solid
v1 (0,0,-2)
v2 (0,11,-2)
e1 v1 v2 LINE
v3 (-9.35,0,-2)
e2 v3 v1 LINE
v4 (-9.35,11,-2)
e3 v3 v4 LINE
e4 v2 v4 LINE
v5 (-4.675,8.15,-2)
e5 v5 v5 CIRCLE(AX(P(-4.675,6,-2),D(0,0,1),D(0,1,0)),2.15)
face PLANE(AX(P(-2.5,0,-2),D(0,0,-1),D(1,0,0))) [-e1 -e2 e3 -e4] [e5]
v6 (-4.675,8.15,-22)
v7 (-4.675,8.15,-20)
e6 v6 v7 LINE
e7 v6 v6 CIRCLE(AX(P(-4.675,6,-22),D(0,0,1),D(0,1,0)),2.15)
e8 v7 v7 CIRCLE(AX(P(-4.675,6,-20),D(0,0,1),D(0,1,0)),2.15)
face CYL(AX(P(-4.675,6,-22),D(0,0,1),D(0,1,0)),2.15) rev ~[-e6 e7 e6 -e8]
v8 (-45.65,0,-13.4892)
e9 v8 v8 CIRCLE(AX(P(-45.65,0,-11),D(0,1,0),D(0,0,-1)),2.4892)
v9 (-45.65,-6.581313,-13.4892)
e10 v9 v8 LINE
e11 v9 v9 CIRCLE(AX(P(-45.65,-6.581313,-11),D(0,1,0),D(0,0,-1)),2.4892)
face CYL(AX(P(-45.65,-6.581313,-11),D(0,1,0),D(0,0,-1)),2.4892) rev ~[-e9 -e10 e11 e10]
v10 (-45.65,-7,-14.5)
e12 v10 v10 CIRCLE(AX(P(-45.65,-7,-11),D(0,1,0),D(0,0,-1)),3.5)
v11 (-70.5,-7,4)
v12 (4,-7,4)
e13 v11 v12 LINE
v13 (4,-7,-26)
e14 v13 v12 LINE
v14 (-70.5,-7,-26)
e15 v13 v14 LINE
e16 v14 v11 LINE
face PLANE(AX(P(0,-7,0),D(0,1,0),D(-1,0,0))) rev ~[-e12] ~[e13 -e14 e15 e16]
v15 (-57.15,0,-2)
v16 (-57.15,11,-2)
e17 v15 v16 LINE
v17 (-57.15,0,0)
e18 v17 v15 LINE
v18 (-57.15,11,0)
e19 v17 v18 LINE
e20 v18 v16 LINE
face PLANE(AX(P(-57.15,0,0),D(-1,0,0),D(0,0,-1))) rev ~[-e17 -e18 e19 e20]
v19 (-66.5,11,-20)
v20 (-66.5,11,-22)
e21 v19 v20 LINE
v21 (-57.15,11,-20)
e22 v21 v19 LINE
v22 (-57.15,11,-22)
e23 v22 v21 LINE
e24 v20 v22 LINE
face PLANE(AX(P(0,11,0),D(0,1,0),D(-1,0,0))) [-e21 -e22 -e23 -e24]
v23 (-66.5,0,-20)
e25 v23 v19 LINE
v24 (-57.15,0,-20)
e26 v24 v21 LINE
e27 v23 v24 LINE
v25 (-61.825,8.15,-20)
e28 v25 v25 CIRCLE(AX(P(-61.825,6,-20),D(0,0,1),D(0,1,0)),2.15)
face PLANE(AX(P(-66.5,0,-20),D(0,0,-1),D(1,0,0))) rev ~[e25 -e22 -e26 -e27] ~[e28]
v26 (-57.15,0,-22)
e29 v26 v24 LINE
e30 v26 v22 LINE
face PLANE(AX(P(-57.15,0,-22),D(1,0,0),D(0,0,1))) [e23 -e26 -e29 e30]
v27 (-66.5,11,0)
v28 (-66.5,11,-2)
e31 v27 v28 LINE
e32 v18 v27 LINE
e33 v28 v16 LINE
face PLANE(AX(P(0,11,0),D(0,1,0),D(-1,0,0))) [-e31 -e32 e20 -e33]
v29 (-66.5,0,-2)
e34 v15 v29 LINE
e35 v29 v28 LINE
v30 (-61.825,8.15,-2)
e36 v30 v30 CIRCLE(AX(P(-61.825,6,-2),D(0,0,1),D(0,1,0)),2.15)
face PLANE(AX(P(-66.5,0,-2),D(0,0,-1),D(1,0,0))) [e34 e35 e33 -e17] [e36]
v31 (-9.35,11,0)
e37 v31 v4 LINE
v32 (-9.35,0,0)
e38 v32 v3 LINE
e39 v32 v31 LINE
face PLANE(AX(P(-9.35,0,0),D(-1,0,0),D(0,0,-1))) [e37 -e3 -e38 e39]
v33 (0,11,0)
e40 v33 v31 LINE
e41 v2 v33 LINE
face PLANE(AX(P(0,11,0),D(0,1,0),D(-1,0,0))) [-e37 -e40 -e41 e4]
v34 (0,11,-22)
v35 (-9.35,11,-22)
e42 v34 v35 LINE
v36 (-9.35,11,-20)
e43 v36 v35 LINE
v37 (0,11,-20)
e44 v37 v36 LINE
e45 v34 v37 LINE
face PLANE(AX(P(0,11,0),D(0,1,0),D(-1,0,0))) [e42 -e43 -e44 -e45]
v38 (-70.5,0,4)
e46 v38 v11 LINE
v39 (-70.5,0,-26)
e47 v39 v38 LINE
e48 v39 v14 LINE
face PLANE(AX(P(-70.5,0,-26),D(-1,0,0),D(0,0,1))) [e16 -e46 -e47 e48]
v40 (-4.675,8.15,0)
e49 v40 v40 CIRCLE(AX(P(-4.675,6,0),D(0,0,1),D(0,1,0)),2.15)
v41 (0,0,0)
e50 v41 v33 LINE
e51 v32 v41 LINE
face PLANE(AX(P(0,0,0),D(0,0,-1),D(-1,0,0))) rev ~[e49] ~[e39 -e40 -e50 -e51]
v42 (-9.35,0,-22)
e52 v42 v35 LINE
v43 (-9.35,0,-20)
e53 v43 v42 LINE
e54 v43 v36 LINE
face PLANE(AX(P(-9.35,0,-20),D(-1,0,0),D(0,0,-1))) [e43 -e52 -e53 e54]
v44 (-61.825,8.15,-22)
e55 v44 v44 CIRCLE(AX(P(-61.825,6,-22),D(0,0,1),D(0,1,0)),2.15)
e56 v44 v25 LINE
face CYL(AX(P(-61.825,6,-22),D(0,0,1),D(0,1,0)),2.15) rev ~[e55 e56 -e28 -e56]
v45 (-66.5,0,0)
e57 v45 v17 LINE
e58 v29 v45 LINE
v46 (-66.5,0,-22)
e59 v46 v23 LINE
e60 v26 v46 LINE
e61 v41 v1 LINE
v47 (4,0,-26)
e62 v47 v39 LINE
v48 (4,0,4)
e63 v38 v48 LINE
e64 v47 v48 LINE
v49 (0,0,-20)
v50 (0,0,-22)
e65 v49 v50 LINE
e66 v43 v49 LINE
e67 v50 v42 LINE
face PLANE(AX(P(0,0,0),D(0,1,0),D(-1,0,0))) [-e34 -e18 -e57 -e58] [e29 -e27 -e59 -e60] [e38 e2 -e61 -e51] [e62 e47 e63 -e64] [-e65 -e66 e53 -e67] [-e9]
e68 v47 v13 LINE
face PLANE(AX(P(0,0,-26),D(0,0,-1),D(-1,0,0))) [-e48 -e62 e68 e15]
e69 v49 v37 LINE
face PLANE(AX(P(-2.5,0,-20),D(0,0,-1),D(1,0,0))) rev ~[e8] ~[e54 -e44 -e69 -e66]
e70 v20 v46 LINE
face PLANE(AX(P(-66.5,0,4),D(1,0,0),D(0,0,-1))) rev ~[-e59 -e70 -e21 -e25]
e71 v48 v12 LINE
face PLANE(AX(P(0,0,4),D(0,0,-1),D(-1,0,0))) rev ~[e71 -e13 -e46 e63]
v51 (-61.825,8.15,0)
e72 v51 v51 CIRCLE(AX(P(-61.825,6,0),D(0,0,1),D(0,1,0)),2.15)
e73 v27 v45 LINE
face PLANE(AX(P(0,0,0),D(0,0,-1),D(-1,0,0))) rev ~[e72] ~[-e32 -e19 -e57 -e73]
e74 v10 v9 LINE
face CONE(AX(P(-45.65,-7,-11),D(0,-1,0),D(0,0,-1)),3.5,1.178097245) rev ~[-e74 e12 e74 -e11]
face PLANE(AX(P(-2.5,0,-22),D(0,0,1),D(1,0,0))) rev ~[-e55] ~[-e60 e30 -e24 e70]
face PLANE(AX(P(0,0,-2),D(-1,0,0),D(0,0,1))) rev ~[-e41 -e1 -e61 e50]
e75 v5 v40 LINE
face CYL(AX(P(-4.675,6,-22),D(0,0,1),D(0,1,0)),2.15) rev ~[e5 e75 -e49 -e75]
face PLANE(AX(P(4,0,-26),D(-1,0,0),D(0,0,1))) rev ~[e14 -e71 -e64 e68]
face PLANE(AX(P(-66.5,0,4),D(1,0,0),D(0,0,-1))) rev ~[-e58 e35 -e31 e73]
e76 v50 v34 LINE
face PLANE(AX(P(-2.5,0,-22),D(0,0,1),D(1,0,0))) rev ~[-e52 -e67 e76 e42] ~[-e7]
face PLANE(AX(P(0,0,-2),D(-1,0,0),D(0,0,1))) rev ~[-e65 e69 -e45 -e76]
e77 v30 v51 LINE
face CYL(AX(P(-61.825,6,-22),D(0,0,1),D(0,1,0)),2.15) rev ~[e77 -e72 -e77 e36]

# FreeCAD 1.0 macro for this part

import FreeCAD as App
import Part
import Sketcher

V = App.Vector
Q = App.Units.Quantity

doc = App.newDocument("Part")
body = doc.addObject("PartDesign::Body", "Body")

# Sketch on XZ plane
sketch1 = doc.addObject("Sketcher::SketchObject", "Sketch")
body.addObject(sketch1)
sketch1.AttachmentSupport = (doc.XZ_Plane, [""])
sketch1.MapMode = "FlatFace"
sketch1.addGeometry([
    Part.LineSegment(V(0, 0, 0), V(0, -22, 0)),
    Part.LineSegment(V(0, -22, 0), V(-66.5, -22, 0)),
    Part.LineSegment(V(-66.5, -22, 0), V(-66.5, 0, 0)),
    Part.LineSegment(V(-66.5, 0, 0), V(0, 0, 0)),
], False)
sketch1.addConstraint([
    Sketcher.Constraint("Coincident", 0, 2, 1, 1),
    Sketcher.Constraint("Coincident", 1, 2, 2, 1),
    Sketcher.Constraint("Coincident", 2, 2, 3, 1),
    Sketcher.Constraint("Coincident", 3, 2, 0, 1),
    Sketcher.Constraint("Vertical", 0),
    Sketcher.Constraint("Horizontal", 1),
    Sketcher.Constraint("Vertical", 2),
    Sketcher.Constraint("Horizontal", 3),
    Sketcher.Constraint("Coincident", 3, 2, -1, 1),
    Sketcher.Constraint("DistanceY", 0, 2, 0, 1, Q("22 mm")),
    Sketcher.Constraint("DistanceX", 1, 2, 1, 1, Q("66.5 mm")),
])
pad1 = doc.addObject("PartDesign::Pad", "Pad")
body.addObject(pad1)
pad1.Profile = sketch1
pad1.Length = 7

# Sketch on XZ plane
sketch2 = doc.addObject("Sketcher::SketchObject", "Sketch001")
body.addObject(sketch2)
sketch2.AttachmentSupport = (doc.XZ_Plane, [""])
sketch2.MapMode = "FlatFace"
sketch2.addGeometry([
    Part.LineSegment(V(0, 0, 0), V(0, -2, 0)),  # 0
    Part.LineSegment(V(0, -2, 0), V(-9.35, -2, 0)),  # 1
    Part.LineSegment(V(-9.35, -2, 0), V(-9.35, 0, 0)),  # 2
    Part.LineSegment(V(-9.35, 0, 0), V(0, 0, 0)),  # 3
    Part.LineSegment(V(0, -20, 0), V(0, -22, 0)),  # 4
    Part.LineSegment(V(0, -22, 0), V(-9.35, -22, 0)),  # 5
    Part.LineSegment(V(-9.35, -22, 0), V(-9.35, -20, 0)),  # 6
    Part.LineSegment(V(-9.35, -20, 0), V(0, -20, 0)),  # 7
    Part.LineSegment(V(-66.5, -2, 0), V(-66.5, 0, 0)),  # 8
    Part.LineSegment(V(-66.5, 0, 0), V(-57.15, 0, 0)),  # 9
    Part.LineSegment(V(-57.15, 0, 0), V(-57.15, -2, 0)),  # 10
    Part.LineSegment(V(-57.15, -2, 0), V(-66.5, -2, 0)),  # 11
    Part.LineSegment(V(-66.5, -22, 0), V(-66.5, -20, 0)),  # 12
    Part.LineSegment(V(-66.5, -20, 0), V(-57.15, -20, 0)),  # 13
    Part.LineSegment(V(-57.15, -20, 0), V(-57.15, -22, 0)),  # 14
    Part.LineSegment(V(-57.15, -22, 0), V(-66.5, -22, 0)),  # 15
], False)
sketch2.addConstraint([
    Sketcher.Constraint("Coincident", 0, 2, 1, 1),
    Sketcher.Constraint("Coincident", 1, 2, 2, 1),
    Sketcher.Constraint("Coincident", 2, 2, 3, 1),
    Sketcher.Constraint("Coincident", 3, 2, 0, 1),
    Sketcher.Constraint("Coincident", 4, 2, 5, 1),
    Sketcher.Constraint("Coincident", 5, 2, 6, 1),
    Sketcher.Constraint("Coincident", 6, 2, 7, 1),
    Sketcher.Constraint("Coincident", 7, 2, 4, 1),
    Sketcher.Constraint("Coincident", 8, 2, 9, 1),
    Sketcher.Constraint("Coincident", 9, 2, 10, 1),
    Sketcher.Constraint("Coincident", 10, 2, 11, 1),
    Sketcher.Constraint("Coincident", 11, 2, 8, 1),
    Sketcher.Constraint("Coincident", 12, 2, 13, 1),
    Sketcher.Constraint("Coincident", 13, 2, 14, 1),
    Sketcher.Constraint("Coincident", 14, 2, 15, 1),
    Sketcher.Constraint("Coincident", 15, 2, 12, 1),
    Sketcher.Constraint("Vertical", 0),
    Sketcher.Constraint("Horizontal", 1),
    Sketcher.Constraint("Vertical", 2),
    Sketcher.Constraint("Horizontal", 3),
    Sketcher.Constraint("Vertical", 4),
    Sketcher.Constraint("Horizontal", 5),
    Sketcher.Constraint("Vertical", 6),
    Sketcher.Constraint("Horizontal", 7),
    Sketcher.Constraint("Vertical", 8),
    Sketcher.Constraint("Horizontal", 9),
    Sketcher.Constraint("Vertical", 10),
    Sketcher.Constraint("Horizontal", 11),
    Sketcher.Constraint("Vertical", 12),
    Sketcher.Constraint("Horizontal", 13),
    Sketcher.Constraint("Vertical", 14),
    Sketcher.Constraint("Horizontal", 15),
    Sketcher.Constraint("Coincident", 3, 2, -1, 1),
    Sketcher.Constraint("PointOnObject", 4, 2, -2),
    Sketcher.Constraint("PointOnObject", 8, 2, -1),
    Sketcher.Constraint("Horizontal", 1, 2, 10, 2),
    Sketcher.Constraint("Horizontal", 7, 2, 12, 2),
    Sketcher.Constraint("Horizontal", 5, 2, 14, 2),
    Sketcher.Constraint("Vertical", 2, 2, 5, 2),
    Sketcher.Constraint("Vertical", 11, 2, 12, 2),
    Sketcher.Constraint("Vertical", 10, 2, 13, 2),
    Sketcher.Constraint("Equal", 7, 9),
    Sketcher.Constraint("Equal", 2, 4),
    Sketcher.Constraint("DistanceY", 0, 2, 0, 1, Q("2 mm")),
    Sketcher.Constraint("DistanceY", 6, 2, 1, 2, Q("18 mm")),
    Sketcher.Constraint("DistanceX", 1, 2, 1, 1, Q("9.35 mm")),
    Sketcher.Constraint("DistanceX", 8, 2, -1, 1, Q("66.5 mm")),
])
pad2 = doc.addObject("PartDesign::Pad", "Pad001")
body.addObject(pad2)
pad2.Profile = sketch2
pad2.Length = 11
pad2.Reversed = True

# Sketch on XY plane
sketch3 = doc.addObject("Sketcher::SketchObject", "Sketch002")
body.addObject(sketch3)
sketch3.AttachmentSupport = (doc.XY_Plane, [""])
sketch3.MapMode = "FlatFace"
sketch3.AttachmentOffset = App.Placement(V(0, 0, -22), App.Rotation())
sketch3.addGeometry([
    Part.Circle(V(-4.675, 6, 0), V(0, 0, 1), 2.15),
    Part.Circle(V(-61.825, 6, 0), V(0, 0, 1), 2.15),
], False)
sketch3.addConstraint([
    Sketcher.Constraint("Equal", 0, 1),
    Sketcher.Constraint("Horizontal", 0, 3, 1, 3),
    Sketcher.Constraint("Diameter", 0, Q("4.3 mm")),
    Sketcher.Constraint("DistanceY", -1, 1, 0, 3, Q("6 mm")),
    Sketcher.Constraint("DistanceX", 1, 3, 0, 3, Q("57.15 mm")),
    Sketcher.Constraint("DistanceX", 0, 3, -1, 1, Q("4.675 mm")),
])
doc.recompute()
hole = doc.addObject("PartDesign::Hole", "Hole")
body.addObject(hole)
hole.Profile = sketch3
hole.ThreadType = "None"
hole.Diameter = 4.3
hole.DepthType = "ThroughAll"
hole.Reversed = True

# Sketch on XZ plane
sketch4 = doc.addObject("Sketcher::SketchObject", "Sketch003")
body.addObject(sketch4)
sketch4.AttachmentSupport = (doc.XZ_Plane, [""])
sketch4.MapMode = "FlatFace"
sketch4.addGeometry([
    Part.LineSegment(V(0, 4, 0), V(0, 0, 0)),  # 0
    Part.LineSegment(V(0, 0, 0), V(-66.5, 0, 0)),  # 1
    Part.LineSegment(V(-66.5, 0, 0), V(-66.5, 4, 0)),  # 2
    Part.LineSegment(V(-66.5, 4, 0), V(0, 4, 0)),  # 3
    Part.LineSegment(V(-66.5, -22, 0), V(0, -22, 0)),  # 4
    Part.LineSegment(V(0, -22, 0), V(0, -26, 0)),  # 5
    Part.LineSegment(V(0, -26, 0), V(-66.5, -26, 0)),  # 6
    Part.LineSegment(V(-66.5, -26, 0), V(-66.5, -22, 0)),  # 7
], False)
sketch4.addConstraint([
    Sketcher.Constraint("Coincident", 0, 2, 1, 1),
    Sketcher.Constraint("Coincident", 1, 2, 2, 1),
    Sketcher.Constraint("Coincident", 2, 2, 3, 1),
    Sketcher.Constraint("Coincident", 3, 2, 0, 1),
    Sketcher.Constraint("Coincident", 4, 2, 5, 1),
    Sketcher.Constraint("Coincident", 5, 2, 6, 1),
    Sketcher.Constraint("Coincident", 6, 2, 7, 1),
    Sketcher.Constraint("Coincident", 7, 2, 4, 1),
    Sketcher.Constraint("Vertical", 0),
    Sketcher.Constraint("Horizontal", 1),
    Sketcher.Constraint("Vertical", 2),
    Sketcher.Constraint("Horizontal", 3),
    Sketcher.Constraint("Horizontal", 4),
    Sketcher.Constraint("Vertical", 5),
    Sketcher.Constraint("Horizontal", 6),
    Sketcher.Constraint("Vertical", 7),
    Sketcher.Constraint("Coincident", 0, 2, -1, 1),
    Sketcher.Constraint("PointOnObject", 4, 2, -2),
    Sketcher.Constraint("Vertical", 2, 2, 6, 2),
    Sketcher.Constraint("Equal", 2, 5),
    Sketcher.Constraint("DistanceY", 0, 2, 0, 1, Q("4 mm")),
    Sketcher.Constraint("DistanceX", 1, 2, 1, 1, Q("66.5 mm")),
    Sketcher.Constraint("DistanceY", 4, 2, -1, 1, Q("22 mm")),
])
pad3 = doc.addObject("PartDesign::Pad", "Pad002")
body.addObject(pad3)
pad3.Profile = sketch4
pad3.Length = 7

# Sketch on XZ plane
sketch5 = doc.addObject("Sketcher::SketchObject", "Sketch004")
body.addObject(sketch5)
sketch5.AttachmentSupport = (doc.XZ_Plane, [""])
sketch5.MapMode = "FlatFace"
sketch5.addGeometry([
    Part.LineSegment(V(0, -26, 0), V(0, 4, 0)),  # 0
    Part.LineSegment(V(0, 4, 0), V(4, 4, 0)),  # 1
    Part.LineSegment(V(4, 4, 0), V(4, -26, 0)),  # 2
    Part.LineSegment(V(4, -26, 0), V(0, -26, 0)),  # 3
    Part.LineSegment(V(-70.5, 4, 0), V(-66.5, 4, 0)),  # 4
    Part.LineSegment(V(-66.5, 4, 0), V(-66.5, -26, 0)),  # 5
    Part.LineSegment(V(-66.5, -26, 0), V(-70.5, -26, 0)),  # 6
    Part.LineSegment(V(-70.5, -26, 0), V(-70.5, 4, 0)),  # 7
], False)
sketch5.addConstraint([
    Sketcher.Constraint("Coincident", 0, 2, 1, 1),
    Sketcher.Constraint("Coincident", 1, 2, 2, 1),
    Sketcher.Constraint("Coincident", 2, 2, 3, 1),
    Sketcher.Constraint("Coincident", 3, 2, 0, 1),
    Sketcher.Constraint("Coincident", 4, 2, 5, 1),
    Sketcher.Constraint("Coincident", 5, 2, 6, 1),
    Sketcher.Constraint("Coincident", 6, 2, 7, 1),
    Sketcher.Constraint("Coincident", 7, 2, 4, 1),
    Sketcher.Constraint("Vertical", 0),
    Sketcher.Constraint("Horizontal", 1),
    Sketcher.Constraint("Vertical", 2),
    Sketcher.Constraint("Horizontal", 3),
    Sketcher.Constraint("Horizontal", 4),
    Sketcher.Constraint("Vertical", 5),
    Sketcher.Constraint("Horizontal", 6),
    Sketcher.Constraint("Vertical", 7),
    Sketcher.Constraint("PointOnObject", 0, 2, -2),
    Sketcher.Constraint("Horizontal", 1, 2, 4, 2),
    Sketcher.Constraint("Horizontal", 3, 2, 5, 2),
    Sketcher.Constraint("Equal", 3, 4),
    Sketcher.Constraint("DistanceX", 1, 1, 1, 2, Q("4 mm")),
    Sketcher.Constraint("DistanceY", -1, 1, 0, 2, Q("4 mm")),
    Sketcher.Constraint("DistanceY", 0, 1, 0, 2, Q("30 mm")),
    Sketcher.Constraint("DistanceX", 4, 2, -1, 1, Q("66.5 mm")),
])
pad4 = doc.addObject("PartDesign::Pad", "Pad003")
body.addObject(pad4)
pad4.Profile = sketch5
pad4.Length = 7

# Sketch on XZ plane
sketch6 = doc.addObject("Sketcher::SketchObject", "Sketch005")
body.addObject(sketch6)
sketch6.AttachmentSupport = (doc.XZ_Plane, [""])
sketch6.MapMode = "FlatFace"
sketch6.AttachmentOffset = App.Placement(V(0, 0, 7), App.Rotation())
sketch6.addGeometry(Part.Circle(V(-45.65, -11, 0), V(0, 0, 1), 2.4892), False)
sketch6.addConstraint([
    Sketcher.Constraint("DistanceY", 0, 3, -1, 1, Q("11 mm")),
    Sketcher.Constraint("Diameter", 0, Q("4.9784 mm")),
    Sketcher.Constraint("DistanceX", 0, 3, -1, 1, Q("45.65 mm")),
])
doc.recompute()
hole2 = doc.addObject("PartDesign::Hole", "Hole001")
body.addObject(hole2)
hole2.Profile = sketch6
hole2.ThreadType = "None"
hole2.Diameter = 4.9784
hole2.DepthType = "ThroughAll"
hole2.HoleCutType = "Countersink"
hole2.HoleCutDiameter = 7
hole2.HoleCutCountersinkAngle = 135

doc.recompute()
